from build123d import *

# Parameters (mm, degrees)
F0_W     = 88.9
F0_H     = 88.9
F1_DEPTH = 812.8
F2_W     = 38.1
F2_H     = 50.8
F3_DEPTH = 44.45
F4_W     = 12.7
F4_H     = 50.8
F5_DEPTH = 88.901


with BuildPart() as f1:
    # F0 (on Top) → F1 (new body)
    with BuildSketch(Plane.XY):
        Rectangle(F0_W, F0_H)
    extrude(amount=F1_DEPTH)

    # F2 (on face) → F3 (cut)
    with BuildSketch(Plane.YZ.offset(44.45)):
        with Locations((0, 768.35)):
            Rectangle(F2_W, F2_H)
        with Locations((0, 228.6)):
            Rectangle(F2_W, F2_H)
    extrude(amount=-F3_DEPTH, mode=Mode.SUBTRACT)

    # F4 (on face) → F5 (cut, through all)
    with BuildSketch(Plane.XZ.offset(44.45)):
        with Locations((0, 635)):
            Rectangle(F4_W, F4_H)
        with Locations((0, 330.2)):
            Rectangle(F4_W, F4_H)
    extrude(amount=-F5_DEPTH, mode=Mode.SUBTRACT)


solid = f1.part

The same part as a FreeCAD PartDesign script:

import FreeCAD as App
import Part
import Sketcher
from FreeCAD import Vector
Q = App.Units.Quantity

doc = App.newDocument("Part")
body = doc.addObject("PartDesign::Body", "Body")

# Sketch on XY plane
sketch1 = doc.addObject("Sketcher::SketchObject", "Sketch")
body.addObject(sketch1)
sketch1.AttachmentSupport = (doc.XY_Plane, [""])
sketch1.MapMode = "FlatFace"
sketch1.addGeometry([
    Part.LineSegment(Vector(-44, 44, 0), Vector(-44, -44, 0)),
    Part.LineSegment(Vector(-44, -44, 0), Vector(44, -44, 0)),
    Part.LineSegment(Vector(44, -44, 0), Vector(44, 44, 0)),
    Part.LineSegment(Vector(44, 44, 0), Vector(-44, 44, 0)),
], False)
sketch1.addConstraint([
    Sketcher.Constraint("Coincident", 0, 2, 1, 1),
    Sketcher.Constraint("Coincident", 1, 2, 2, 1),
    Sketcher.Constraint("Coincident", 2, 2, 3, 1),
    Sketcher.Constraint("Coincident", 3, 2, 0, 1),
    Sketcher.Constraint("Vertical", 0),
    Sketcher.Constraint("Horizontal", 1),
    Sketcher.Constraint("Vertical", 2),
    Sketcher.Constraint("Horizontal", 3),
    Sketcher.Constraint("Symmetric", 0, 2, 2, 2, -1, 1),
    Sketcher.Constraint("Equal", 3, 0),
    Sketcher.Constraint("DistanceX", 1, 1, 1, 2, Q("3.5 in")),
])
pad1 = doc.addObject("PartDesign::Pad", "Pad")
body.addObject(pad1)
pad1.Profile = sketch1
pad1.Length = Q("32 in")

# Sketch on YZ plane
sketch2 = doc.addObject("Sketcher::SketchObject", "Sketch001")
body.addObject(sketch2)
sketch2.AttachmentSupport = (doc.YZ_Plane, [""])
sketch2.MapMode = "FlatFace"
sketch2.AttachmentOffset = App.Placement(Vector(0, 0, 1.75 * 25.4), App.Rotation())
sketch2.addGeometry([
    Part.LineSegment(Vector(-19, 794, 0), Vector(-19, 743, 0)),  # 0
    Part.LineSegment(Vector(-19, 743, 0), Vector(19, 743, 0)),  # 1
    Part.LineSegment(Vector(19, 743, 0), Vector(19, 794, 0)),  # 2
    Part.LineSegment(Vector(19, 794, 0), Vector(-19, 794, 0)),  # 3
    Part.LineSegment(Vector(-19, 254, 0), Vector(-19, 203, 0)),  # 4
    Part.LineSegment(Vector(-19, 203, 0), Vector(19, 203, 0)),  # 5
    Part.LineSegment(Vector(19, 203, 0), Vector(19, 254, 0)),  # 6
    Part.LineSegment(Vector(19, 254, 0), Vector(-19, 254, 0)),  # 7
], False)
sketch2.addConstraint([
    Sketcher.Constraint("Coincident", 0, 2, 1, 1),
    Sketcher.Constraint("Coincident", 1, 2, 2, 1),
    Sketcher.Constraint("Coincident", 2, 2, 3, 1),
    Sketcher.Constraint("Coincident", 3, 2, 0, 1),
    Sketcher.Constraint("Coincident", 4, 2, 5, 1),
    Sketcher.Constraint("Coincident", 5, 2, 6, 1),
    Sketcher.Constraint("Coincident", 6, 2, 7, 1),
    Sketcher.Constraint("Coincident", 7, 2, 4, 1),
    Sketcher.Constraint("Vertical", 0),
    Sketcher.Constraint("Horizontal", 1),
    Sketcher.Constraint("Vertical", 2),
    Sketcher.Constraint("Horizontal", 3),
    Sketcher.Constraint("Vertical", 4),
    Sketcher.Constraint("Horizontal", 5),
    Sketcher.Constraint("Vertical", 6),
    Sketcher.Constraint("Horizontal", 7),
    Sketcher.Constraint("Vertical", 3, 2, 4, 2),
    Sketcher.Constraint("Vertical", 2, 2, 5, 2),
    Sketcher.Constraint("Equal", 2, 4),
    Sketcher.Constraint("DistanceY", 0, 2, 0, 1, Q("2 in")),
    Sketcher.Constraint("DistanceX", 1, 1, 1, 2, Q("1.5 in")),
    Sketcher.Constraint("DistanceY", -1, 1, 4, 2, Q("8 in")),
    Sketcher.Constraint("DistanceX", 0, 2, -1, 1, Q("0.75 in")),
    Sketcher.Constraint("DistanceY", -1, 1, 0, 2, Q("29.25 in")),
])
pocket1 = doc.addObject("PartDesign::Pocket", "Pocket")
body.addObject(pocket1)
pocket1.Profile = sketch2
pocket1.Length = Q("1.75 in")

# Sketch on XZ plane
sketch3 = doc.addObject("Sketcher::SketchObject", "Sketch002")
body.addObject(sketch3)
sketch3.AttachmentSupport = (doc.XZ_Plane, [""])
sketch3.MapMode = "FlatFace"
sketch3.AttachmentOffset = App.Placement(Vector(0, 0, 1.75 * 25.4), App.Rotation())
sketch3.addGeometry([
    Part.LineSegment(Vector(-6, 660, 0), Vector(-6, 610, 0)),  # 0
    Part.LineSegment(Vector(-6, 610, 0), Vector(6, 610, 0)),  # 1
    Part.LineSegment(Vector(6, 610, 0), Vector(6, 660, 0)),  # 2
    Part.LineSegment(Vector(6, 660, 0), Vector(-6, 660, 0)),  # 3
    Part.LineSegment(Vector(-6, 356, 0), Vector(-6, 305, 0)),  # 4
    Part.LineSegment(Vector(-6, 305, 0), Vector(6, 305, 0)),  # 5
    Part.LineSegment(Vector(6, 305, 0), Vector(6, 356, 0)),  # 6
    Part.LineSegment(Vector(6, 356, 0), Vector(-6, 356, 0)),  # 7
], False)
sketch3.addConstraint([
    Sketcher.Constraint("Coincident", 0, 2, 1, 1),
    Sketcher.Constraint("Coincident", 1, 2, 2, 1),
    Sketcher.Constraint("Coincident", 2, 2, 3, 1),
    Sketcher.Constraint("Coincident", 3, 2, 0, 1),
    Sketcher.Constraint("Coincident", 4, 2, 5, 1),
    Sketcher.Constraint("Coincident", 5, 2, 6, 1),
    Sketcher.Constraint("Coincident", 6, 2, 7, 1),
    Sketcher.Constraint("Coincident", 7, 2, 4, 1),
    Sketcher.Constraint("Vertical", 0),
    Sketcher.Constraint("Horizontal", 1),
    Sketcher.Constraint("Vertical", 2),
    Sketcher.Constraint("Horizontal", 3),
    Sketcher.Constraint("Vertical", 4),
    Sketcher.Constraint("Horizontal", 5),
    Sketcher.Constraint("Vertical", 6),
    Sketcher.Constraint("Horizontal", 7),
    Sketcher.Constraint("Vertical", 3, 2, 4, 2),
    Sketcher.Constraint("Vertical", 2, 2, 5, 2),
    Sketcher.Constraint("Equal", 2, 4),
    Sketcher.Constraint("DistanceY", 0, 2, 0, 1, Q("2 in")),
    Sketcher.Constraint("DistanceX", 1, 1, 1, 2, Q("0.5 in")),
    Sketcher.Constraint("DistanceY", -1, 1, 0, 2, Q("24 in")),
    Sketcher.Constraint("DistanceY", -1, 1, 4, 2, Q("12 in")),
    Sketcher.Constraint("DistanceX", 0, 2, -1, 1, Q("0.25 in")),
])
pocket2 = doc.addObject("PartDesign::Pocket", "Pocket001")
body.addObject(pocket2)
pocket2.Profile = sketch3
pocket2.Type = "ThroughAll"

doc.recompute()
